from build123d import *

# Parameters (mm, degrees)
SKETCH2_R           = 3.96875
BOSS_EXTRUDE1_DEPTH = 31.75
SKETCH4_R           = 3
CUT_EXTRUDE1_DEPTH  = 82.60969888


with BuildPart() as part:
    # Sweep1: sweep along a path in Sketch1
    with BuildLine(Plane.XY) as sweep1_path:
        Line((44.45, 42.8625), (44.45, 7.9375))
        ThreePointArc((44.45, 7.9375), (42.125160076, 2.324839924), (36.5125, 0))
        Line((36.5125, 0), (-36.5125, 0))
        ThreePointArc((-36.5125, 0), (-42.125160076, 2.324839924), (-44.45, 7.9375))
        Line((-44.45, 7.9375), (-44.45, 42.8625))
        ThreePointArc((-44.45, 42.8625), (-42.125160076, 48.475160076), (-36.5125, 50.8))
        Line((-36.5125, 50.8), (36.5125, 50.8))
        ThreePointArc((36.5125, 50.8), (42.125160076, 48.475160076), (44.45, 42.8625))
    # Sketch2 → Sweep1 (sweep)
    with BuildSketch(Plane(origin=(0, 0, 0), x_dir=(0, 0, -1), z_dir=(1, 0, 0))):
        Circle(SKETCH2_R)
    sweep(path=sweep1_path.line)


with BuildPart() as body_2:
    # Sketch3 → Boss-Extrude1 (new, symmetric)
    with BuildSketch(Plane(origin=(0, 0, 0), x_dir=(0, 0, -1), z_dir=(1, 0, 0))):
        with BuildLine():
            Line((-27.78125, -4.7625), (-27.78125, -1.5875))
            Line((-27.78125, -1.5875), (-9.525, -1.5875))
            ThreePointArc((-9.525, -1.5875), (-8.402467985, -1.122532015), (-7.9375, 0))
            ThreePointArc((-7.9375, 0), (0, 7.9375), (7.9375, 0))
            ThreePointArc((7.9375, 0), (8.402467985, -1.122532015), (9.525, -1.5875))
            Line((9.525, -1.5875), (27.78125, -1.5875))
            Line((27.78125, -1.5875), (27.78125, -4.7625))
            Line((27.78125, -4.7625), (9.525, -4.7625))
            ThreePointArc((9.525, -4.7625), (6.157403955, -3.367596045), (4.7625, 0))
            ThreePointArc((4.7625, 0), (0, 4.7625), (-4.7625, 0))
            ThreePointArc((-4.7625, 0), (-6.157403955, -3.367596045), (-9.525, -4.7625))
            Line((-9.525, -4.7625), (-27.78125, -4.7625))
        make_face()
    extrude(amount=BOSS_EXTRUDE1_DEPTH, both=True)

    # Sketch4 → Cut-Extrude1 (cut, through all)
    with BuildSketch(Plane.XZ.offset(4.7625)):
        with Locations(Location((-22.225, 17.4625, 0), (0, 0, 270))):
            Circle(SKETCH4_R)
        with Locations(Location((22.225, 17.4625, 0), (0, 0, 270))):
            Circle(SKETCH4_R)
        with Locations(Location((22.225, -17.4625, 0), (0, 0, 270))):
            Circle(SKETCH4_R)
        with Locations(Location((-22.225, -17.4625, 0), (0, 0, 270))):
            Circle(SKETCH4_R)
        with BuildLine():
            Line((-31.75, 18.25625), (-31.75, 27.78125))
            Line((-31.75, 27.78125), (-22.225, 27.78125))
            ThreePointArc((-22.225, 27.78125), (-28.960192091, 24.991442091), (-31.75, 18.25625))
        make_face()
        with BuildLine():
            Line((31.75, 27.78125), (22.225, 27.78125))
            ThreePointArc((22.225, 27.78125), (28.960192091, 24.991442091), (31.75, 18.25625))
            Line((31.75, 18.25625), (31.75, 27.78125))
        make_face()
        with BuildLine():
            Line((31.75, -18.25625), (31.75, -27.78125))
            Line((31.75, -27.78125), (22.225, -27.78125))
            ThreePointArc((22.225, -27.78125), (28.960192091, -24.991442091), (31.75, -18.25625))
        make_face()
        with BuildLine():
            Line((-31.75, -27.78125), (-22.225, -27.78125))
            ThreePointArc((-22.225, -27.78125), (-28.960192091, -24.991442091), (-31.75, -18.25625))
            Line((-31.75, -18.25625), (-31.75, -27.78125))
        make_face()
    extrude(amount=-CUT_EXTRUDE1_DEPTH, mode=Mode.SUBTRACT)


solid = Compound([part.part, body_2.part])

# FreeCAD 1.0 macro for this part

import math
import FreeCAD as App
import Part
import Sketcher
Q = App.Units.Quantity

doc = App.newDocument("Part")
body = doc.addObject("PartDesign::Body", "Body")

# Sketch on YZ plane
sketch1 = body.newObject("Sketcher::SketchObject", "Sketch")
sketch1.AttachmentSupport = (doc.getObject("YZ_Plane"), [""])
sketch1.MapMode = "FlatFace"
sketch1.addGeometry(Part.Circle(App.Vector(0, 0, 0), App.Vector(0, 0, 1), 4), False)
sketch1.addConstraint([
    Sketcher.Constraint("Coincident", 0, 3, -1, 1),
    Sketcher.Constraint("Diameter", 0, Q("0.3125 in")),
])

# Sketch on XY plane
sketch2 = body.newObject("Sketcher::SketchObject", "Sketch001")
sketch2.AttachmentSupport = (doc.getObject("XY_Plane"), [""])
sketch2.MapMode = "FlatFace"
sketch2.addGeometry([
    Part.LineSegment(App.Vector(44, 43, 0), App.Vector(44, 8, 0)),  # 0
    Part.ArcOfCircle(Part.Circle(App.Vector(37, 8, 0), App.Vector(0, 0, 1), 8), math.radians(-90), math.radians(0)),  # 1
    Part.LineSegment(App.Vector(37, 0, 0), App.Vector(-37, 0, 0)),  # 2
    Part.ArcOfCircle(Part.Circle(App.Vector(-37, 8, 0), App.Vector(0, 0, 1), 8), math.radians(180), math.radians(270)),  # 3
    Part.LineSegment(App.Vector(-44, 8, 0), App.Vector(-44, 43, 0)),  # 4
    Part.ArcOfCircle(Part.Circle(App.Vector(-37, 43, 0), App.Vector(0, 0, 1), 8), math.radians(90), math.radians(180)),  # 5
    Part.LineSegment(App.Vector(-37, 51, 0), App.Vector(37, 51, 0)),  # 6
    Part.ArcOfCircle(Part.Circle(App.Vector(37, 43, 0), App.Vector(0, 0, 1), 8), math.radians(0), math.radians(90)),  # 7
], False)
sketch2.addConstraint([
    Sketcher.Constraint("Tangent", 0, 2, 1, 2),
    Sketcher.Constraint("Tangent", 1, 1, 2, 1),
    Sketcher.Constraint("Tangent", 2, 2, 3, 2),
    Sketcher.Constraint("Tangent", 3, 1, 4, 1),
    Sketcher.Constraint("Tangent", 4, 2, 5, 2),
    Sketcher.Constraint("Tangent", 5, 1, 6, 1),
    Sketcher.Constraint("Tangent", 6, 2, 7, 2),
    Sketcher.Constraint("Tangent", 7, 1, 0, 1),
    Sketcher.Constraint("Vertical", 0),
    Sketcher.Constraint("Horizontal", 2),
    Sketcher.Constraint("Vertical", 4),
    Sketcher.Constraint("Horizontal", 6),
    Sketcher.Constraint("Equal", 1, 3),
    Sketcher.Constraint("Equal", 3, 5),
    Sketcher.Constraint("Equal", 5, 7),
    Sketcher.Constraint("Symmetric", 1, 1, 2, 2, -1, 1),
    Sketcher.Constraint("DistanceY", -1, 1, 5, 1, Q("2 in")),
    Sketcher.Constraint("Radius", 1, Q("0.3125 in")),
    Sketcher.Constraint("DistanceX", 2, 2, 2, 1, Q("2.875 in")),
])
doc.recompute()

additivepipe = body.newObject("PartDesign::AdditivePipe", "AdditivePipe")
additivepipe.Profile = sketch1
additivepipe.Spine = (sketch2, ["Edge1", "Edge2", "Edge3", "Edge4", "Edge5", "Edge6", "Edge7", "Edge8"])
body2 = doc.addObject("PartDesign::Body", "Body001")

# Sketch on YZ plane
sketch3 = body2.newObject("Sketcher::SketchObject", "Sketch002")
sketch3.AttachmentSupport = (doc.getObject("YZ_Plane001"), [""])
sketch3.MapMode = "FlatFace"
sketch3.addGeometry([
    Part.LineSegment(App.Vector(-1.6, 27.8, 0), App.Vector(-4.8, 27.8, 0)),  # 0
    Part.LineSegment(App.Vector(-4.8, 27.8, 0), App.Vector(-4.8, 9.5, 0)),  # 1
    Part.ArcOfCircle(Part.Circle(App.Vector(0, 9.5, 0), App.Vector(0, 0, 1), 4.8), math.radians(-180), math.radians(-90)),  # 2
    Part.ArcOfCircle(Part.Circle(App.Vector(0, 0, 0), App.Vector(0, 0, 1), 4.8), math.radians(-90), math.radians(90)),  # 3
    Part.ArcOfCircle(Part.Circle(App.Vector(0, -9.5, 0), App.Vector(0, 0, 1), 4.8), math.radians(90), math.radians(180)),  # 4
    Part.LineSegment(App.Vector(-4.8, -9.5, 0), App.Vector(-4.8, -27.8, 0)),  # 5
    Part.LineSegment(App.Vector(-4.8, -27.8, 0), App.Vector(-1.6, -27.8, 0)),  # 6
    Part.LineSegment(App.Vector(-1.6, -27.8, 0), App.Vector(-1.6, -9.5, 0)),  # 7
    Part.ArcOfCircle(Part.Circle(App.Vector(0, -9.5, 0), App.Vector(0, 0, 1), 1.6), math.radians(90), math.radians(180)),  # 8
    Part.ArcOfCircle(Part.Circle(App.Vector(0, 0, 0), App.Vector(0, 0, 1), 7.9), math.radians(-90), math.radians(90)),  # 9
    Part.ArcOfCircle(Part.Circle(App.Vector(0, 9.5, 0), App.Vector(0, 0, 1), 1.6), math.radians(180), math.radians(270)),  # 10
    Part.LineSegment(App.Vector(-1.6, 9.5, 0), App.Vector(-1.6, 27.8, 0)),  # 11
], False)
sketch3.addConstraint([
    Sketcher.Constraint("Coincident", 0, 2, 1, 1),
    Sketcher.Constraint("Tangent", 1, 2, 2, 1),
    Sketcher.Constraint("Tangent", 2, 2, 3, 2),
    Sketcher.Constraint("Tangent", 3, 1, 4, 1),
    Sketcher.Constraint("Tangent", 4, 2, 5, 1),
    Sketcher.Constraint("Coincident", 5, 2, 6, 1),
    Sketcher.Constraint("Coincident", 6, 2, 7, 1),
    Sketcher.Constraint("Tangent", 7, 2, 8, 2),
    Sketcher.Constraint("Tangent", 8, 1, 9, 1),
    Sketcher.Constraint("Tangent", 9, 2, 10, 2),
    Sketcher.Constraint("Tangent", 10, 1, 11, 1),
    Sketcher.Constraint("Coincident", 11, 2, 0, 1),
    Sketcher.Constraint("Horizontal", 0),
    Sketcher.Constraint("Vertical", 1),
    Sketcher.Constraint("Vertical", 5),
    Sketcher.Constraint("Horizontal", 6),
    Sketcher.Constraint("Vertical", 7),
    Sketcher.Constraint("Vertical", 11),
    Sketcher.Constraint("Coincident", 3, 3, -1, 1),
    Sketcher.Constraint("Coincident", 9, 3, -1, 1),
    Sketcher.Constraint("Coincident", 8, 3, 4, 3),
    Sketcher.Constraint("Coincident", 10, 3, 2, 3),
    Sketcher.Constraint("Equal", 2, 3),
    Sketcher.Constraint("Equal", 3, 4),
    Sketcher.Constraint("Symmetric", 0, 2, 5, 2, -1),
    Sketcher.Constraint("PointOnObject", 2, 3, -2),
    Sketcher.Constraint("Radius", 2, Q("0.1875 in")),
    Sketcher.Constraint("Radius", 8, Q("0.0625 in")),
    Sketcher.Constraint("DistanceY", 1, 2, 1, 1, Q("0.71875 in")),
])
pad1 = body2.newObject("PartDesign::Pad", "Pad")
pad1.Profile = sketch3
pad1.Length = Q("2.5 in")
pad1.Midplane = True

# Sketch on XZ plane
sketch4 = body2.newObject("Sketcher::SketchObject", "Sketch003")
sketch4.AttachmentSupport = (doc.getObject("XZ_Plane001"), [""])
sketch4.MapMode = "FlatFace"
sketch4.AttachmentOffset = App.Placement(App.Vector(0, 0, 0.1875 * 25.4), App.Rotation())
sketch4.addGeometry([
    Part.Circle(App.Vector(-22.2, 17.5, 0), App.Vector(0, 0, 1), 3),  # 0
    Part.Circle(App.Vector(22.2, 17.5, 0), App.Vector(0, 0, 1), 3),  # 1
    Part.Circle(App.Vector(22.2, -17.5, 0), App.Vector(0, 0, 1), 3),  # 2
    Part.Circle(App.Vector(-22.2, -17.5, 0), App.Vector(0, 0, 1), 3),  # 3
    Part.LineSegment(App.Vector(-31.8, 27.8, 0), App.Vector(-31.8, 18.3, 0)),  # 4
    Part.ArcOfCircle(Part.Circle(App.Vector(-22.2, 18.3, 0), App.Vector(0, 0, 1), 9.5), math.radians(90), math.radians(180)),  # 5
    Part.LineSegment(App.Vector(-22.2, 27.8, 0), App.Vector(-31.8, 27.8, 0)),  # 6
    Part.LineSegment(App.Vector(31.8, 27.8, 0), App.Vector(22.2, 27.8, 0)),  # 7
    Part.ArcOfCircle(Part.Circle(App.Vector(22.2, 18.3, 0), App.Vector(0, 0, 1), 9.5), math.radians(0), math.radians(90)),  # 8
    Part.LineSegment(App.Vector(31.8, 18.3, 0), App.Vector(31.8, 27.8, 0)),  # 9
    Part.LineSegment(App.Vector(31.8, -27.8, 0), App.Vector(31.8, -18.3, 0)),  # 10
    Part.ArcOfCircle(Part.Circle(App.Vector(22.2, -18.3, 0), App.Vector(0, 0, 1), 9.5), math.radians(-90), math.radians(0)),  # 11
    Part.LineSegment(App.Vector(22.2, -27.8, 0), App.Vector(31.8, -27.8, 0)),  # 12
    Part.LineSegment(App.Vector(-31.8, -27.8, 0), App.Vector(-22.2, -27.8, 0)),  # 13
    Part.ArcOfCircle(Part.Circle(App.Vector(-22.2, -18.3, 0), App.Vector(0, 0, 1), 9.5), math.radians(180), math.radians(270)),  # 14
    Part.LineSegment(App.Vector(-31.8, -18.3, 0), App.Vector(-31.8, -27.8, 0)),  # 15
], False)
sketch4.addConstraint([
    Sketcher.Constraint("Tangent", 4, 2, 5, 2),
    Sketcher.Constraint("Tangent", 5, 1, 6, 1),
    Sketcher.Constraint("Coincident", 6, 2, 4, 1),
    Sketcher.Constraint("Tangent", 7, 2, 8, 2),
    Sketcher.Constraint("Tangent", 8, 1, 9, 1),
    Sketcher.Constraint("Coincident", 9, 2, 7, 1),
    Sketcher.Constraint("Tangent", 10, 2, 11, 2),
    Sketcher.Constraint("Tangent", 11, 1, 12, 1),
    Sketcher.Constraint("Coincident", 12, 2, 10, 1),
    Sketcher.Constraint("Tangent", 13, 2, 14, 2),
    Sketcher.Constraint("Tangent", 14, 1, 15, 1),
    Sketcher.Constraint("Coincident", 15, 2, 13, 1),
    Sketcher.Constraint("Vertical", 4),
    Sketcher.Constraint("Horizontal", 6),
    Sketcher.Constraint("Horizontal", 7),
    Sketcher.Constraint("Vertical", 9),
    Sketcher.Constraint("Vertical", 10),
    Sketcher.Constraint("Horizontal", 12),
    Sketcher.Constraint("Horizontal", 13),
    Sketcher.Constraint("Vertical", 15),
    Sketcher.Constraint("Equal", 0, 1),
    Sketcher.Constraint("Equal", 1, 2),
    Sketcher.Constraint("Equal", 2, 3),
    Sketcher.Constraint("Equal", 5, 8),
    Sketcher.Constraint("Equal", 8, 11),
    Sketcher.Constraint("Equal", 11, 14),
    Sketcher.Constraint("Symmetric", 0, 3, 2, 3, -1, 1),
    Sketcher.Constraint("Symmetric", 1, 3, 3, 3, -1, 1),
    Sketcher.Constraint("Symmetric", 5, 3, 11, 3, -1, 1),
    Sketcher.Constraint("Symmetric", 8, 3, 14, 3, -1, 1),
    Sketcher.Constraint("Symmetric", 0, 3, 1, 3, -2),
    Sketcher.Constraint("Symmetric", 5, 3, 8, 3, -2),
    Sketcher.Constraint("Vertical", 3, 3, 5, 3),
    Sketcher.Constraint("Radius", 5, Q("0.375 in")),
    Sketcher.Constraint("Diameter", 0, 6.0),
    Sketcher.Constraint("DistanceX", 4, 2, -1, 1, Q("1.25 in")),
    Sketcher.Constraint("DistanceY", -1, 1, 0, 3, Q("0.6875 in")),
    Sketcher.Constraint("DistanceY", -1, 1, 5, 3, Q("0.71875 in")),
])
pocket1 = body2.newObject("PartDesign::Pocket", "Pocket")
pocket1.Profile = sketch4
pocket1.Type = "ThroughAll"

doc.recompute()
